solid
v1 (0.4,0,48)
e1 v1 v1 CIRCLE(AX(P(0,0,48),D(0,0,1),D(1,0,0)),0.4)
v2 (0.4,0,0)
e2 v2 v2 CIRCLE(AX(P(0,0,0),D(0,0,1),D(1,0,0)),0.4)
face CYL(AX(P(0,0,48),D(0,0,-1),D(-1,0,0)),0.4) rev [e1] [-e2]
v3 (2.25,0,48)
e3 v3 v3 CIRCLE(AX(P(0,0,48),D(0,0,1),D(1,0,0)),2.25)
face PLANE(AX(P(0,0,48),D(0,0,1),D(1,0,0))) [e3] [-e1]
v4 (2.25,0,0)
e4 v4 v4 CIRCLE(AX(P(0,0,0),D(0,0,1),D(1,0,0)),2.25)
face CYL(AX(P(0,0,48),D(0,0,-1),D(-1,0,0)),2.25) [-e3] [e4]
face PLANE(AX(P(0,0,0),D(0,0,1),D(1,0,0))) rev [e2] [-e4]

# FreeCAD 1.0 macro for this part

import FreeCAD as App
import Part
import Sketcher
from FreeCAD import Vector
Q = App.Units.Quantity

doc = App.newDocument("Part")
body = doc.addObject("PartDesign::Body", "Body")

sketch1 = body.newObject("Sketcher::SketchObject", "Sketch")
sketch1.AttachmentSupport = (doc.getObject("XY_Plane"), [""])
sketch1.MapMode = "FlatFace"
sketch1.addGeometry(Part.Circle(Vector(0, 0, 0), Vector(0, 0, 1), 2.25), False)
sketch1.addGeometry(Part.Circle(Vector(0, 0, 0), Vector(0, 0, 1), 0.4), False)
sketch1.addConstraint(Sketcher.Constraint("Coincident", 0, 3, -1, 1))
sketch1.addConstraint(Sketcher.Constraint("Coincident", 1, 3, -1, 1))
sketch1.addConstraint(Sketcher.Constraint("Diameter", 0, Q("4.5 mm")))
sketch1.addConstraint(Sketcher.Constraint("Diameter", 1, Q("0.8 mm")))
pad1 = body.newObject("PartDesign::Pad", "Pad")
pad1.Profile = sketch1
pad1.Length = 48

doc.recompute()
